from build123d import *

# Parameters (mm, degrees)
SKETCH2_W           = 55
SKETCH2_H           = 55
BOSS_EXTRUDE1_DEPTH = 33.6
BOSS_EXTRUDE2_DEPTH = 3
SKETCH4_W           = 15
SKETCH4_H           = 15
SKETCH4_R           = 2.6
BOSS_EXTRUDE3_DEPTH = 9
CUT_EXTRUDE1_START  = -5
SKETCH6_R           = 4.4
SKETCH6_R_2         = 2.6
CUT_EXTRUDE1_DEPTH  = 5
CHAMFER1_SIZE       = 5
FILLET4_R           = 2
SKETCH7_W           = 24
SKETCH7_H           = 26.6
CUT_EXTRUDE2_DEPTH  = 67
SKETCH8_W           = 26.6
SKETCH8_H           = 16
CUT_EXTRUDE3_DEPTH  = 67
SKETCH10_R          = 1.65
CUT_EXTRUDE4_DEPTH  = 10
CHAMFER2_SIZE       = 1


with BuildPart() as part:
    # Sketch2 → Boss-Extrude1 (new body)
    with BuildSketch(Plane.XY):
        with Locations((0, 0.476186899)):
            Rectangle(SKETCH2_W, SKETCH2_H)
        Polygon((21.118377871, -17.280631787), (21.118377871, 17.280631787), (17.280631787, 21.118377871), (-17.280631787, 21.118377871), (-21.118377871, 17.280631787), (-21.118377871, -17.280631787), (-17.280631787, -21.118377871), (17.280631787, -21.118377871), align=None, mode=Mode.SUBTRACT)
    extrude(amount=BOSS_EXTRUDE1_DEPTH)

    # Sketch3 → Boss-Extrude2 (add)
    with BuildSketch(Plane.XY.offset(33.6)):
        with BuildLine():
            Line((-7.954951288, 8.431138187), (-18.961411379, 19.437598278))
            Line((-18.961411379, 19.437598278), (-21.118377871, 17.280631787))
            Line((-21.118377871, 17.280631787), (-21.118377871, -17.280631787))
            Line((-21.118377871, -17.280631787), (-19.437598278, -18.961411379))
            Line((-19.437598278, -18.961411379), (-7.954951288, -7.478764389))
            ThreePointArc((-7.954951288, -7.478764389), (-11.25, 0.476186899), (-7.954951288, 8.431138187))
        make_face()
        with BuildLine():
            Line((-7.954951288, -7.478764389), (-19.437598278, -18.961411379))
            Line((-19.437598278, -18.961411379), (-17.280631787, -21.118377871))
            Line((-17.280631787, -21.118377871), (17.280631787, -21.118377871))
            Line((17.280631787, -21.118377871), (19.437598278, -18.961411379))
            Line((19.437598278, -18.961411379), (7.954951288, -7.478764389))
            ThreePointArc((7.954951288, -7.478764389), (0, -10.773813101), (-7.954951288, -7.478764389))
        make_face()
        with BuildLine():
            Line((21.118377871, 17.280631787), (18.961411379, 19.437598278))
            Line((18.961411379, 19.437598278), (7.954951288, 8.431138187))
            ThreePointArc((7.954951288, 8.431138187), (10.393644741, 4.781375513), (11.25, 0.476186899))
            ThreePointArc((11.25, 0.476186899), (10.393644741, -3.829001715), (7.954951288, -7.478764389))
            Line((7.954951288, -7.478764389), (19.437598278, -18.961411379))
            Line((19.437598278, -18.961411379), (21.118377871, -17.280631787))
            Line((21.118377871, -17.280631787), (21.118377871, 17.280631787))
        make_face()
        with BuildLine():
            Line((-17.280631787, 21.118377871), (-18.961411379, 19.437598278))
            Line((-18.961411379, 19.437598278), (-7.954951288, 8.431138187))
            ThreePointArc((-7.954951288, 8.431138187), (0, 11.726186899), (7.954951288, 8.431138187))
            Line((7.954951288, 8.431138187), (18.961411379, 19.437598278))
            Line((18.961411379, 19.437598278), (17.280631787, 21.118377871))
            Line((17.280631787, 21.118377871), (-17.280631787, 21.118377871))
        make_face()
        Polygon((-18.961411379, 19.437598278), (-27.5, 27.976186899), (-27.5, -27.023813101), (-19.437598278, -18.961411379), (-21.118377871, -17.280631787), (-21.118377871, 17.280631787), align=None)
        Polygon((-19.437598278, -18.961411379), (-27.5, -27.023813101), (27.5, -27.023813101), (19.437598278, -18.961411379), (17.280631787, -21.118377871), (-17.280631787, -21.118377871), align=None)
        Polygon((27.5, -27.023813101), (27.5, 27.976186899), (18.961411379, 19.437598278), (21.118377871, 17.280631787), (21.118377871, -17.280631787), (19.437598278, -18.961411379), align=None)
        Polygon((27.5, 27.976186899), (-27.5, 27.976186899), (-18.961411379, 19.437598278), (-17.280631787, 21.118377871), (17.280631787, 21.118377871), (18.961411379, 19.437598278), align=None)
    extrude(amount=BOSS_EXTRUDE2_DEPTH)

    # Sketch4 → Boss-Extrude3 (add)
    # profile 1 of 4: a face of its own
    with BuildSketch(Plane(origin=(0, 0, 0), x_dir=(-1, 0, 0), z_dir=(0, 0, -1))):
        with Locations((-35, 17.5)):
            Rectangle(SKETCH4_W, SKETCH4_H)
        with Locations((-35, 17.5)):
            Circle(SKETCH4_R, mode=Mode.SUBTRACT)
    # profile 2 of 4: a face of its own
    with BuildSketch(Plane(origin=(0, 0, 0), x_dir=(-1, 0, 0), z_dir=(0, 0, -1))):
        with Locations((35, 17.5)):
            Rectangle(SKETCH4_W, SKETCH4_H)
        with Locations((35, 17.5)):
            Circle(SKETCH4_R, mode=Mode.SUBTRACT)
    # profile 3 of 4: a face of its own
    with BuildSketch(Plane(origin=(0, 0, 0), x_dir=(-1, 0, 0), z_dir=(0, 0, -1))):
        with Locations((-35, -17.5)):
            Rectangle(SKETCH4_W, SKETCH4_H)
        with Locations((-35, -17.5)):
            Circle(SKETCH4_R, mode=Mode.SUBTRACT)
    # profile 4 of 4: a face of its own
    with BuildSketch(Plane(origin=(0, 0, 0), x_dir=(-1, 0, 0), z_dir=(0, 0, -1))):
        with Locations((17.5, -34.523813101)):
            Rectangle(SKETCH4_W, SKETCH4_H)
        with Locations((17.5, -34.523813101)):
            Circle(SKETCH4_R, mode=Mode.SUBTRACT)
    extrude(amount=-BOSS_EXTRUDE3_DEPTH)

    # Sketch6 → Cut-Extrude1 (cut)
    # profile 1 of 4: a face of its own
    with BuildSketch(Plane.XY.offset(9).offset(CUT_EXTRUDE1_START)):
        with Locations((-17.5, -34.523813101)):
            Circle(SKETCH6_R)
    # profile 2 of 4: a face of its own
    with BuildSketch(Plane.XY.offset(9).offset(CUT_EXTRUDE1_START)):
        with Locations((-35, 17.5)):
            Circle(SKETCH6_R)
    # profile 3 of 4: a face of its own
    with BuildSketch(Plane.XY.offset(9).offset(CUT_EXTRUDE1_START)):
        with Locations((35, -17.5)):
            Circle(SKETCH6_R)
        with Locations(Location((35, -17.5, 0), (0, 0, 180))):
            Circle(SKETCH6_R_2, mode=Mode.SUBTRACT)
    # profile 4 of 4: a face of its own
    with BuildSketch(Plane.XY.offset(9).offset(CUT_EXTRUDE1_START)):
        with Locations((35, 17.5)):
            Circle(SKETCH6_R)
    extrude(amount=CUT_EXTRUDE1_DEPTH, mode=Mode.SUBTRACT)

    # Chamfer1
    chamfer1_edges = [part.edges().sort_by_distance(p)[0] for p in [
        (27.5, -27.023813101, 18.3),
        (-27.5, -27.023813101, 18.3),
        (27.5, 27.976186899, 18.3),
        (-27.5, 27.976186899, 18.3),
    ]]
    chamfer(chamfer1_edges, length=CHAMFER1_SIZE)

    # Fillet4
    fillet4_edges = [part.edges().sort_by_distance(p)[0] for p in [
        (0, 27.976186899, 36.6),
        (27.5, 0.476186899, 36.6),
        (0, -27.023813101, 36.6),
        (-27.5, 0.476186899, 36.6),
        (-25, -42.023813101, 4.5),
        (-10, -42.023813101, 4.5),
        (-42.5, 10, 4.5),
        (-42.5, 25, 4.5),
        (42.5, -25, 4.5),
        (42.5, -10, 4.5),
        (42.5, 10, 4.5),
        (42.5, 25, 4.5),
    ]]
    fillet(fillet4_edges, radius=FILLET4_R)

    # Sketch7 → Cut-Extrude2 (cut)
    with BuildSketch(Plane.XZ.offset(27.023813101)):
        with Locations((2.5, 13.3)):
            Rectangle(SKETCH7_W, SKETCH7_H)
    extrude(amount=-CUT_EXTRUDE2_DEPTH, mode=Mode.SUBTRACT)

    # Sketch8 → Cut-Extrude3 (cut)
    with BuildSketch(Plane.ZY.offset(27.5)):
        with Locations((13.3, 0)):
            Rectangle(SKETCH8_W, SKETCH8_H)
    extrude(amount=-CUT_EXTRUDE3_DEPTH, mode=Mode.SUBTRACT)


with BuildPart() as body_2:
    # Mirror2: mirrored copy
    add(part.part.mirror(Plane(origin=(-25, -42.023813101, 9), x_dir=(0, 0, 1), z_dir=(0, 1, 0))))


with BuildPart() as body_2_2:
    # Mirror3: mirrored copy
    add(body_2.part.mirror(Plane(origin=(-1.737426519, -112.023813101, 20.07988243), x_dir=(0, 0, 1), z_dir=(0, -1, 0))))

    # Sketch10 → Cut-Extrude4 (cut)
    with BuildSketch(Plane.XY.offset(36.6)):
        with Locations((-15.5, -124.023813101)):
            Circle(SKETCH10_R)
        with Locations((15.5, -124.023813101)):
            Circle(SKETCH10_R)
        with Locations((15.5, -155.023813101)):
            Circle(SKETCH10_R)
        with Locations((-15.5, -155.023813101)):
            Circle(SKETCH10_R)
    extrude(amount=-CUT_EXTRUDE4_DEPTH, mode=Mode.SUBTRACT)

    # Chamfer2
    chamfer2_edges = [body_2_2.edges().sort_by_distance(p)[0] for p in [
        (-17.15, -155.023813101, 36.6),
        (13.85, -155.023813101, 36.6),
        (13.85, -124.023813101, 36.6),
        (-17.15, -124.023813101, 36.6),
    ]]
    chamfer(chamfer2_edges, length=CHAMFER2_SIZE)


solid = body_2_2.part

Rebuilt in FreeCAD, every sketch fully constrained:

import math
import FreeCAD as App
import Part
import Sketcher

V = App.Vector
Q = App.Units.Quantity


def edges_at(feature, points):
    """Names of the edges that pass closest to the given points."""
    edges = feature.Shape.Edges
    near = lambda p: min(range(len(edges)), key=lambda i: edges[i].distToShape(Part.Vertex(*p))[0])
    return sorted({f"Edge{near(p) + 1}" for p in points})

doc = App.newDocument("Part")
body = doc.addObject("PartDesign::Body", "Body")

# Sketch on XY plane
sketch1 = doc.addObject("Sketcher::SketchObject", "Sketch")
body.addObject(sketch1)
sketch1.AttachmentSupport = (doc.XY_Plane, [""])
sketch1.MapMode = "FlatFace"
sketch1.addGeometry([
    Part.LineSegment(V(-28, 28, 0), V(-28, -27, 0)),  # 0
    Part.LineSegment(V(-28, -27, 0), V(28, -27, 0)),  # 1
    Part.LineSegment(V(28, -27, 0), V(28, 28, 0)),  # 2
    Part.LineSegment(V(28, 28, 0), V(-28, 28, 0)),  # 3
    Part.LineSegment(V(21, 17, 0), V(21, -17, 0)),  # 4
    Part.LineSegment(V(21, -17, 0), V(17, -21, 0)),  # 5
    Part.LineSegment(V(17, -21, 0), V(-17, -21, 0)),  # 6
    Part.LineSegment(V(-17, -21, 0), V(-21, -17, 0)),  # 7
    Part.LineSegment(V(-21, -17, 0), V(-21, 17, 0)),  # 8
    Part.LineSegment(V(-21, 17, 0), V(-17, 21, 0)),  # 9
    Part.LineSegment(V(-17, 21, 0), V(17, 21, 0)),  # 10
    Part.LineSegment(V(17, 21, 0), V(21, 17, 0)),  # 11
], False)
sketch1.addConstraint([
    Sketcher.Constraint("Coincident", 0, 2, 1, 1),
    Sketcher.Constraint("Coincident", 1, 2, 2, 1),
    Sketcher.Constraint("Coincident", 2, 2, 3, 1),
    Sketcher.Constraint("Coincident", 3, 2, 0, 1),
    Sketcher.Constraint("Coincident", 4, 2, 5, 1),
    Sketcher.Constraint("Coincident", 5, 2, 6, 1),
    Sketcher.Constraint("Coincident", 6, 2, 7, 1),
    Sketcher.Constraint("Coincident", 7, 2, 8, 1),
    Sketcher.Constraint("Coincident", 8, 2, 9, 1),
    Sketcher.Constraint("Coincident", 9, 2, 10, 1),
    Sketcher.Constraint("Coincident", 10, 2, 11, 1),
    Sketcher.Constraint("Coincident", 11, 2, 4, 1),
    Sketcher.Constraint("Vertical", 0),
    Sketcher.Constraint("Horizontal", 1),
    Sketcher.Constraint("Vertical", 2),
    Sketcher.Constraint("Horizontal", 3),
    Sketcher.Constraint("Vertical", 4),
    Sketcher.Constraint("Horizontal", 6),
    Sketcher.Constraint("Vertical", 8),
    Sketcher.Constraint("Horizontal", 10),
    Sketcher.Constraint("Symmetric", 4, 2, 8, 2, -1, 1),
    Sketcher.Constraint("Symmetric", 5, 2, 9, 2, -1, 1),
    Sketcher.Constraint("Perpendicular", 5, 7),
    Sketcher.Constraint("Perpendicular", 9, 11),
    Sketcher.Constraint("Horizontal", 4, 2, 7, 2),
    Sketcher.Constraint("Horizontal", 8, 2, 11, 2),
    Sketcher.Constraint("Vertical", 6, 2, 9, 2),
    Sketcher.Constraint("Equal", 3, 0),
    Sketcher.Constraint("Equal", 10, 4),
    Sketcher.Constraint("DistanceX", 1, 1, 1, 2, Q("55 mm")),
    Sketcher.Constraint("DistanceX", 0, 2, -1, 1, Q("27.5 mm")),
    Sketcher.Constraint("DistanceX", 6, 2, 6, 1, Q("34.561264 mm")),
    Sketcher.Constraint("DistanceY", 1, 2, 4, 2, Q("9.743181 mm")),
    Sketcher.Constraint("DistanceX", 6, 2, 4, 2, Q("38.39901 mm")),
])
pad1 = doc.addObject("PartDesign::Pad", "Pad")
body.addObject(pad1)
pad1.Profile = sketch1
pad1.Length = 33.6

# Sketch on XY plane
sketch2 = doc.addObject("Sketcher::SketchObject", "Sketch001")
body.addObject(sketch2)
sketch2.AttachmentSupport = (doc.XY_Plane, [""])
sketch2.MapMode = "FlatFace"
sketch2.AttachmentOffset = App.Placement(V(0, 0, 33.6), App.Rotation())
sketch2.addGeometry([
    Part.LineSegment(V(-28, 28, 0), V(-28, -27, 0)),  # 0
    Part.LineSegment(V(-28, -27, 0), V(28, -27, 0)),  # 1
    Part.LineSegment(V(28, -27, 0), V(28, 28, 0)),  # 2
    Part.LineSegment(V(28, 28, 0), V(-28, 28, 0)),  # 3
    Part.ArcOfCircle(Part.Circle(V(0, 0, 0), V(0, 0, 1), 11), math.radians(0), math.radians(45)),  # 4
    Part.ArcOfCircle(Part.Circle(V(0, 0, 0), V(0, 0, 1), 11), math.radians(-45), math.radians(0)),  # 5
    Part.ArcOfCircle(Part.Circle(V(0, 0, 0), V(0, 0, 1), 11), math.radians(-135), math.radians(-45)),  # 6
    Part.ArcOfCircle(Part.Circle(V(0, 0, 0), V(0, 0, 1), 11), math.radians(135), math.radians(225)),  # 7
    Part.ArcOfCircle(Part.Circle(V(0, 0, 0), V(0, 0, 1), 11), math.radians(45), math.radians(135)),  # 8
], False)
sketch2.addConstraint([
    Sketcher.Constraint("Coincident", 0, 2, 1, 1),
    Sketcher.Constraint("Coincident", 1, 2, 2, 1),
    Sketcher.Constraint("Coincident", 2, 2, 3, 1),
    Sketcher.Constraint("Coincident", 3, 2, 0, 1),
    Sketcher.Constraint("Tangent", 4, 1, 5, 2),
    Sketcher.Constraint("Tangent", 5, 1, 6, 2),
    Sketcher.Constraint("Tangent", 6, 1, 7, 2),
    Sketcher.Constraint("Tangent", 7, 1, 8, 2),
    Sketcher.Constraint("Tangent", 8, 1, 4, 2),
    Sketcher.Constraint("Vertical", 0),
    Sketcher.Constraint("Horizontal", 1),
    Sketcher.Constraint("Vertical", 2),
    Sketcher.Constraint("Horizontal", 3),
    Sketcher.Constraint("Coincident", 6, 3, 4, 3),
    Sketcher.Constraint("Symmetric", 5, 1, 6, 1, -2),
    Sketcher.Constraint("Horizontal", 8, 3, 4, 1),
    Sketcher.Constraint("Horizontal", 7, 1, 8, 1),
    Sketcher.Constraint("Vertical", 6, 1, 7, 1),
    Sketcher.Constraint("Equal", 3, 0),
    Sketcher.Constraint("DistanceX", 1, 1, 1, 2, Q("55 mm")),
    Sketcher.Constraint("Radius", 4, Q("11.25 mm")),
    Sketcher.Constraint("DistanceX", 0, 2, -1, 1, Q("27.5 mm")),
    Sketcher.Constraint("DistanceY", 0, 2, 6, 3, Q("27.5 mm")),
    Sketcher.Constraint("DistanceX", -1, 1, 5, 1, Q("7.954951 mm")),
    Sketcher.Constraint("DistanceY", -1, 1, 7, 1, Q("8.431138 mm")),
])
pad2 = doc.addObject("PartDesign::Pad", "Pad001")
body.addObject(pad2)
pad2.Profile = sketch2
pad2.Length = 3

# Sketch on XY plane
sketch3 = doc.addObject("Sketcher::SketchObject", "Sketch002")
body.addObject(sketch3)
sketch3.AttachmentSupport = (doc.XY_Plane, [""])
sketch3.MapMode = "FlatFace"
sketch3.addGeometry([
    Part.LineSegment(V(42.5, 25, 0), V(42.5, 10, 0)),  # 0
    Part.LineSegment(V(42.5, 10, 0), V(27.5, 10, 0)),  # 1
    Part.LineSegment(V(27.5, 10, 0), V(27.5, 25, 0)),  # 2
    Part.LineSegment(V(27.5, 25, 0), V(42.5, 25, 0)),  # 3
    Part.Circle(V(35, 17.5, 0), V(0, 0, 1), 2.6),  # 4
    Part.LineSegment(V(-27.5, 25, 0), V(-27.5, 10, 0)),  # 5
    Part.LineSegment(V(-27.5, 10, 0), V(-42.5, 10, 0)),  # 6
    Part.LineSegment(V(-42.5, 10, 0), V(-42.5, 25, 0)),  # 7
    Part.LineSegment(V(-42.5, 25, 0), V(-27.5, 25, 0)),  # 8
    Part.Circle(V(-35, 17.5, 0), V(0, 0, 1), 2.6),  # 9
    Part.LineSegment(V(42.5, -10, 0), V(42.5, -25, 0)),  # 10
    Part.LineSegment(V(42.5, -25, 0), V(27.5, -25, 0)),  # 11
    Part.LineSegment(V(27.5, -25, 0), V(27.5, -10, 0)),  # 12
    Part.LineSegment(V(27.5, -10, 0), V(42.5, -10, 0)),  # 13
    Part.Circle(V(35, -17.5, 0), V(0, 0, 1), 2.6),  # 14
    Part.LineSegment(V(-10, -27, 0), V(-10, -42, 0)),  # 15
    Part.LineSegment(V(-10, -42, 0), V(-25, -42, 0)),  # 16
    Part.LineSegment(V(-25, -42, 0), V(-25, -27, 0)),  # 17
    Part.LineSegment(V(-25, -27, 0), V(-10, -27, 0)),  # 18
    Part.Circle(V(-17.5, -34.5, 0), V(0, 0, 1), 2.6),  # 19
], False)
sketch3.addConstraint([
    Sketcher.Constraint("Coincident", 0, 2, 1, 1),
    Sketcher.Constraint("Coincident", 1, 2, 2, 1),
    Sketcher.Constraint("Coincident", 2, 2, 3, 1),
    Sketcher.Constraint("Coincident", 3, 2, 0, 1),
    Sketcher.Constraint("Coincident", 5, 2, 6, 1),
    Sketcher.Constraint("Coincident", 6, 2, 7, 1),
    Sketcher.Constraint("Coincident", 7, 2, 8, 1),
    Sketcher.Constraint("Coincident", 8, 2, 5, 1),
    Sketcher.Constraint("Coincident", 10, 2, 11, 1),
    Sketcher.Constraint("Coincident", 11, 2, 12, 1),
    Sketcher.Constraint("Coincident", 12, 2, 13, 1),
    Sketcher.Constraint("Coincident", 13, 2, 10, 1),
    Sketcher.Constraint("Coincident", 15, 2, 16, 1),
    Sketcher.Constraint("Coincident", 16, 2, 17, 1),
    Sketcher.Constraint("Coincident", 17, 2, 18, 1),
    Sketcher.Constraint("Coincident", 18, 2, 15, 1),
    Sketcher.Constraint("Vertical", 0),
    Sketcher.Constraint("Horizontal", 1),
    Sketcher.Constraint("Vertical", 2),
    Sketcher.Constraint("Horizontal", 3),
    Sketcher.Constraint("Vertical", 5),
    Sketcher.Constraint("Horizontal", 6),
    Sketcher.Constraint("Vertical", 7),
    Sketcher.Constraint("Horizontal", 8),
    Sketcher.Constraint("Vertical", 10),
    Sketcher.Constraint("Horizontal", 11),
    Sketcher.Constraint("Vertical", 12),
    Sketcher.Constraint("Horizontal", 13),
    Sketcher.Constraint("Vertical", 15),
    Sketcher.Constraint("Horizontal", 16),
    Sketcher.Constraint("Vertical", 17),
    Sketcher.Constraint("Horizontal", 18),
    Sketcher.Constraint("Equal", 4, 9),
    Sketcher.Constraint("Equal", 9, 14),
    Sketcher.Constraint("Equal", 14, 19),
    Sketcher.Constraint("Symmetric", 9, 3, 14, 3, -1, 1),
    Sketcher.Constraint("Symmetric", 7, 2, 10, 2, -1, 1),
    Sketcher.Constraint("Symmetric", 5, 2, 12, 2, -1, 1),
    Sketcher.Constraint("Symmetric", 4, 3, 9, 3, -2),
    Sketcher.Constraint("Symmetric", 1, 2, 5, 2, -2),
    Sketcher.Constraint("Symmetric", 3, 2, 7, 2, -2),
    Sketcher.Constraint("Equal", 13, 16),
    Sketcher.Constraint("Equal", 18, 0),
    Sketcher.Constraint("Equal", 12, 15),
    Sketcher.Constraint("Diameter", 4, Q("5.2 mm")),
    Sketcher.Constraint("DistanceX", 1, 2, 1, 1, Q("15 mm")),
    Sketcher.Constraint("DistanceX", -1, 1, 4, 3, Q("35 mm")),
    Sketcher.Constraint("DistanceY", -1, 1, 0, 2, Q("10 mm")),
    Sketcher.Constraint("DistanceX", 15, 2, -1, 1, Q("10 mm")),
    Sketcher.Constraint("DistanceY", 14, 3, 4, 3, Q("35 mm")),
    Sketcher.Constraint("DistanceX", 19, 3, 0, 2, Q("60 mm")),
    Sketcher.Constraint("DistanceX", 5, 2, 19, 3, Q("10 mm")),
    Sketcher.Constraint("DistanceY", 15, 2, 19, 3, Q("7.5 mm")),
    Sketcher.Constraint("DistanceY", 19, 3, -1, 1, Q("34.523813 mm")),
])
pad3 = doc.addObject("PartDesign::Pad", "Pad002")
body.addObject(pad3)
pad3.Profile = sketch3
pad3.Length = 9

# Sketch on XY plane
sketch4 = doc.addObject("Sketcher::SketchObject", "Sketch003")
body.addObject(sketch4)
sketch4.AttachmentSupport = (doc.XY_Plane, [""])
sketch4.MapMode = "FlatFace"
sketch4.AttachmentOffset = App.Placement(V(0, 0, 4), App.Rotation())
sketch4.addGeometry([
    Part.Circle(V(-17.5, -34.5, 0), V(0, 0, 1), 4.4),  # 0
    Part.Circle(V(-35, 17.5, 0), V(0, 0, 1), 4.4),  # 1
    Part.Circle(V(35, -17.5, 0), V(0, 0, 1), 4.4),  # 2
    Part.Circle(V(35, -17.5, 0), V(0, 0, 1), 2.6),  # 3
    Part.Circle(V(35, 17.5, 0), V(0, 0, 1), 4.4),  # 4
], False)
sketch4.addConstraint([
    Sketcher.Constraint("Coincident", 3, 3, 2, 3),
    Sketcher.Constraint("Equal", 0, 1),
    Sketcher.Constraint("Equal", 1, 2),
    Sketcher.Constraint("Equal", 2, 4),
    Sketcher.Constraint("Symmetric", 1, 3, 2, 3, -1, 1),
    Sketcher.Constraint("Symmetric", 1, 3, 4, 3, -2),
    Sketcher.Constraint("Diameter", 0, Q("8.8 mm")),
    Sketcher.Constraint("Diameter", 3, Q("5.2 mm")),
    Sketcher.Constraint("DistanceX", 1, 3, -1, 1, Q("35 mm")),
    Sketcher.Constraint("DistanceY", 2, 3, 1, 3, Q("35 mm")),
    Sketcher.Constraint("DistanceX", 0, 3, -1, 1, Q("17.5 mm")),
    Sketcher.Constraint("DistanceY", 0, 3, -1, 1, Q("34.523813 mm")),
])
pocket1 = doc.addObject("PartDesign::Pocket", "Pocket")
body.addObject(pocket1)
pocket1.Profile = sketch4
pocket1.Length = 5
pocket1.Reversed = True
doc.recompute()

chamfer = doc.addObject("PartDesign::Chamfer", "Chamfer")
body.addObject(chamfer)
chamfer.Base = (pocket1, edges_at(pocket1, [
    (27.5, -27.024, 18.3),
    (-27.5, -27.024, 18.3),
    (27.5, 27.976, 18.3),
    (-27.5, 27.976, 18.3),
]))
chamfer.Size = 5
doc.recompute()

fillet = doc.addObject("PartDesign::Fillet", "Fillet")
body.addObject(fillet)
fillet.Base = (chamfer, edges_at(chamfer, [
    (0, 27.976, 36.6),
    (27.5, 0.476, 36.6),
    (0, -27.024, 36.6),
    (-27.5, 0.476, 36.6),
    (-25, -42.024, 4.5),
    (-10, -42.024, 4.5),
    (-42.5, 10, 4.5),
    (-42.5, 25, 4.5),
    (42.5, -25, 4.5),
    (42.5, -10, 4.5),
    (42.5, 10, 4.5),
    (42.5, 25, 4.5),
]))
fillet.Radius = 2

# Sketch on XZ plane
sketch5 = doc.addObject("Sketcher::SketchObject", "Sketch004")
body.addObject(sketch5)
sketch5.AttachmentSupport = (doc.XZ_Plane, [""])
sketch5.MapMode = "FlatFace"
sketch5.AttachmentOffset = App.Placement(V(0, 0, 27.023813), App.Rotation())
sketch5.addGeometry([
    Part.LineSegment(V(-10, 27, 0), V(-10, 0, 0)),
    Part.LineSegment(V(-10, 0, 0), V(14, 0, 0)),
    Part.LineSegment(V(14, 0, 0), V(14, 27, 0)),
    Part.LineSegment(V(14, 27, 0), V(-10, 27, 0)),
], False)
sketch5.addConstraint([
    Sketcher.Constraint("Coincident", 0, 2, 1, 1),
    Sketcher.Constraint("Coincident", 1, 2, 2, 1),
    Sketcher.Constraint("Coincident", 2, 2, 3, 1),
    Sketcher.Constraint("Coincident", 3, 2, 0, 1),
    Sketcher.Constraint("Vertical", 0),
    Sketcher.Constraint("Horizontal", 1),
    Sketcher.Constraint("Vertical", 2),
    Sketcher.Constraint("Horizontal", 3),
    Sketcher.Constraint("PointOnObject", 0, 2, -1),
    Sketcher.Constraint("DistanceX", 1, 1, 1, 2, Q("24 mm")),
    Sketcher.Constraint("DistanceY", 0, 2, 0, 1, Q("26.6 mm")),
    Sketcher.Constraint("DistanceX", 0, 2, -1, 1, Q("9.5 mm")),
])
pocket2 = doc.addObject("PartDesign::Pocket", "Pocket001")
body.addObject(pocket2)
pocket2.Profile = sketch5
pocket2.Length = 67

# Sketch on YZ plane
sketch6 = doc.addObject("Sketcher::SketchObject", "Sketch005")
body.addObject(sketch6)
sketch6.AttachmentSupport = (doc.YZ_Plane, [""])
sketch6.MapMode = "FlatFace"
sketch6.AttachmentOffset = App.Placement(V(0, 0, -27.5), App.Rotation())
sketch6.addGeometry([
    Part.LineSegment(V(8, 0, 0), V(-8, 0, 0)),
    Part.LineSegment(V(-8, 0, 0), V(-8, 27, 0)),
    Part.LineSegment(V(-8, 27, 0), V(8, 27, 0)),
    Part.LineSegment(V(8, 27, 0), V(8, 0, 0)),
], False)
sketch6.addConstraint([
    Sketcher.Constraint("Coincident", 0, 2, 1, 1),
    Sketcher.Constraint("Coincident", 1, 2, 2, 1),
    Sketcher.Constraint("Coincident", 2, 2, 3, 1),
    Sketcher.Constraint("Coincident", 3, 2, 0, 1),
    Sketcher.Constraint("Horizontal", 0),
    Sketcher.Constraint("Vertical", 1),
    Sketcher.Constraint("Horizontal", 2),
    Sketcher.Constraint("Vertical", 3),
    Sketcher.Constraint("Symmetric", 0, 2, 3, 2, -1, 1),
    Sketcher.Constraint("DistanceX", 0, 2, 0, 1, Q("16 mm")),
    Sketcher.Constraint("DistanceY", 1, 1, 1, 2, Q("26.6 mm")),
])
pocket3 = doc.addObject("PartDesign::Pocket", "Pocket002")
body.addObject(pocket3)
pocket3.Profile = sketch6
pocket3.Length = 67
pocket3.Reversed = True
body2 = doc.addObject("PartDesign::Body", "Body001")
doc.recompute()

mirroring = doc.addObject("Part::Mirroring", "Mirroring")
mirroring.Source = body
mirroring.Base = V(-25, -42.023813, 9)
mirroring.Normal = V(0, 1, 0)
body2.BaseFeature = mirroring
doc.recompute()
body3 = doc.addObject("PartDesign::Body", "Body002")
doc.recompute()

mirroring2 = doc.addObject("Part::Mirroring", "Mirroring001")
mirroring2.Source = body2
mirroring2.Base = V(-1.737427, -112.023813, 20.079882)
mirroring2.Normal = V(0, -1, 0)
body3.BaseFeature = mirroring2
doc.recompute()

# Sketch on XY plane
sketch7 = doc.addObject("Sketcher::SketchObject", "Sketch006")
body3.addObject(sketch7)
sketch7.AttachmentSupport = (doc.getObject("XY_Plane002"), [""])
sketch7.MapMode = "FlatFace"
sketch7.AttachmentOffset = App.Placement(V(0, 0, 36.6), App.Rotation())
sketch7.addGeometry([
    Part.Circle(V(-15.5, -124, 0), V(0, 0, 1), 1.6),
    Part.Circle(V(15.5, -124, 0), V(0, 0, 1), 1.6),
    Part.Circle(V(15.5, -155, 0), V(0, 0, 1), 1.6),
    Part.Circle(V(-15.5, -155, 0), V(0, 0, 1), 1.6),
], False)
sketch7.addConstraint([
    Sketcher.Constraint("Equal", 0, 1),
    Sketcher.Constraint("Equal", 1, 2),
    Sketcher.Constraint("Equal", 2, 3),
    Sketcher.Constraint("Symmetric", 0, 3, 1, 3, -2),
    Sketcher.Constraint("Symmetric", 2, 3, 3, 3, -2),
    Sketcher.Constraint("Vertical", 1, 3, 2, 3),
    Sketcher.Constraint("Diameter", 0, Q("3.3 mm")),
    Sketcher.Constraint("DistanceX", 0, 3, 1, 3, Q("31 mm")),
    Sketcher.Constraint("DistanceY", 2, 3, 1, 3, Q("31 mm")),
    Sketcher.Constraint("DistanceY", 0, 3, -1, 1, Q("124.023813 mm")),
])
pocket4 = doc.addObject("PartDesign::Pocket", "Pocket003")
body3.addObject(pocket4)
pocket4.Profile = sketch7
pocket4.Length = 10
doc.recompute()

chamfer2 = doc.addObject("PartDesign::Chamfer", "Chamfer001")
body3.addObject(chamfer2)
chamfer2.Base = (pocket4, edges_at(pocket4, [
    (-17.15, -155.024, 36.6),
    (13.85, -155.024, 36.6),
    (13.85, -124.024, 36.6),
    (-17.15, -124.024, 36.6),
]))
chamfer2.Size = 1
body.Visibility = False
body2.Visibility = False
mirroring.Visibility = False
mirroring2.Visibility = False

doc.recompute()
